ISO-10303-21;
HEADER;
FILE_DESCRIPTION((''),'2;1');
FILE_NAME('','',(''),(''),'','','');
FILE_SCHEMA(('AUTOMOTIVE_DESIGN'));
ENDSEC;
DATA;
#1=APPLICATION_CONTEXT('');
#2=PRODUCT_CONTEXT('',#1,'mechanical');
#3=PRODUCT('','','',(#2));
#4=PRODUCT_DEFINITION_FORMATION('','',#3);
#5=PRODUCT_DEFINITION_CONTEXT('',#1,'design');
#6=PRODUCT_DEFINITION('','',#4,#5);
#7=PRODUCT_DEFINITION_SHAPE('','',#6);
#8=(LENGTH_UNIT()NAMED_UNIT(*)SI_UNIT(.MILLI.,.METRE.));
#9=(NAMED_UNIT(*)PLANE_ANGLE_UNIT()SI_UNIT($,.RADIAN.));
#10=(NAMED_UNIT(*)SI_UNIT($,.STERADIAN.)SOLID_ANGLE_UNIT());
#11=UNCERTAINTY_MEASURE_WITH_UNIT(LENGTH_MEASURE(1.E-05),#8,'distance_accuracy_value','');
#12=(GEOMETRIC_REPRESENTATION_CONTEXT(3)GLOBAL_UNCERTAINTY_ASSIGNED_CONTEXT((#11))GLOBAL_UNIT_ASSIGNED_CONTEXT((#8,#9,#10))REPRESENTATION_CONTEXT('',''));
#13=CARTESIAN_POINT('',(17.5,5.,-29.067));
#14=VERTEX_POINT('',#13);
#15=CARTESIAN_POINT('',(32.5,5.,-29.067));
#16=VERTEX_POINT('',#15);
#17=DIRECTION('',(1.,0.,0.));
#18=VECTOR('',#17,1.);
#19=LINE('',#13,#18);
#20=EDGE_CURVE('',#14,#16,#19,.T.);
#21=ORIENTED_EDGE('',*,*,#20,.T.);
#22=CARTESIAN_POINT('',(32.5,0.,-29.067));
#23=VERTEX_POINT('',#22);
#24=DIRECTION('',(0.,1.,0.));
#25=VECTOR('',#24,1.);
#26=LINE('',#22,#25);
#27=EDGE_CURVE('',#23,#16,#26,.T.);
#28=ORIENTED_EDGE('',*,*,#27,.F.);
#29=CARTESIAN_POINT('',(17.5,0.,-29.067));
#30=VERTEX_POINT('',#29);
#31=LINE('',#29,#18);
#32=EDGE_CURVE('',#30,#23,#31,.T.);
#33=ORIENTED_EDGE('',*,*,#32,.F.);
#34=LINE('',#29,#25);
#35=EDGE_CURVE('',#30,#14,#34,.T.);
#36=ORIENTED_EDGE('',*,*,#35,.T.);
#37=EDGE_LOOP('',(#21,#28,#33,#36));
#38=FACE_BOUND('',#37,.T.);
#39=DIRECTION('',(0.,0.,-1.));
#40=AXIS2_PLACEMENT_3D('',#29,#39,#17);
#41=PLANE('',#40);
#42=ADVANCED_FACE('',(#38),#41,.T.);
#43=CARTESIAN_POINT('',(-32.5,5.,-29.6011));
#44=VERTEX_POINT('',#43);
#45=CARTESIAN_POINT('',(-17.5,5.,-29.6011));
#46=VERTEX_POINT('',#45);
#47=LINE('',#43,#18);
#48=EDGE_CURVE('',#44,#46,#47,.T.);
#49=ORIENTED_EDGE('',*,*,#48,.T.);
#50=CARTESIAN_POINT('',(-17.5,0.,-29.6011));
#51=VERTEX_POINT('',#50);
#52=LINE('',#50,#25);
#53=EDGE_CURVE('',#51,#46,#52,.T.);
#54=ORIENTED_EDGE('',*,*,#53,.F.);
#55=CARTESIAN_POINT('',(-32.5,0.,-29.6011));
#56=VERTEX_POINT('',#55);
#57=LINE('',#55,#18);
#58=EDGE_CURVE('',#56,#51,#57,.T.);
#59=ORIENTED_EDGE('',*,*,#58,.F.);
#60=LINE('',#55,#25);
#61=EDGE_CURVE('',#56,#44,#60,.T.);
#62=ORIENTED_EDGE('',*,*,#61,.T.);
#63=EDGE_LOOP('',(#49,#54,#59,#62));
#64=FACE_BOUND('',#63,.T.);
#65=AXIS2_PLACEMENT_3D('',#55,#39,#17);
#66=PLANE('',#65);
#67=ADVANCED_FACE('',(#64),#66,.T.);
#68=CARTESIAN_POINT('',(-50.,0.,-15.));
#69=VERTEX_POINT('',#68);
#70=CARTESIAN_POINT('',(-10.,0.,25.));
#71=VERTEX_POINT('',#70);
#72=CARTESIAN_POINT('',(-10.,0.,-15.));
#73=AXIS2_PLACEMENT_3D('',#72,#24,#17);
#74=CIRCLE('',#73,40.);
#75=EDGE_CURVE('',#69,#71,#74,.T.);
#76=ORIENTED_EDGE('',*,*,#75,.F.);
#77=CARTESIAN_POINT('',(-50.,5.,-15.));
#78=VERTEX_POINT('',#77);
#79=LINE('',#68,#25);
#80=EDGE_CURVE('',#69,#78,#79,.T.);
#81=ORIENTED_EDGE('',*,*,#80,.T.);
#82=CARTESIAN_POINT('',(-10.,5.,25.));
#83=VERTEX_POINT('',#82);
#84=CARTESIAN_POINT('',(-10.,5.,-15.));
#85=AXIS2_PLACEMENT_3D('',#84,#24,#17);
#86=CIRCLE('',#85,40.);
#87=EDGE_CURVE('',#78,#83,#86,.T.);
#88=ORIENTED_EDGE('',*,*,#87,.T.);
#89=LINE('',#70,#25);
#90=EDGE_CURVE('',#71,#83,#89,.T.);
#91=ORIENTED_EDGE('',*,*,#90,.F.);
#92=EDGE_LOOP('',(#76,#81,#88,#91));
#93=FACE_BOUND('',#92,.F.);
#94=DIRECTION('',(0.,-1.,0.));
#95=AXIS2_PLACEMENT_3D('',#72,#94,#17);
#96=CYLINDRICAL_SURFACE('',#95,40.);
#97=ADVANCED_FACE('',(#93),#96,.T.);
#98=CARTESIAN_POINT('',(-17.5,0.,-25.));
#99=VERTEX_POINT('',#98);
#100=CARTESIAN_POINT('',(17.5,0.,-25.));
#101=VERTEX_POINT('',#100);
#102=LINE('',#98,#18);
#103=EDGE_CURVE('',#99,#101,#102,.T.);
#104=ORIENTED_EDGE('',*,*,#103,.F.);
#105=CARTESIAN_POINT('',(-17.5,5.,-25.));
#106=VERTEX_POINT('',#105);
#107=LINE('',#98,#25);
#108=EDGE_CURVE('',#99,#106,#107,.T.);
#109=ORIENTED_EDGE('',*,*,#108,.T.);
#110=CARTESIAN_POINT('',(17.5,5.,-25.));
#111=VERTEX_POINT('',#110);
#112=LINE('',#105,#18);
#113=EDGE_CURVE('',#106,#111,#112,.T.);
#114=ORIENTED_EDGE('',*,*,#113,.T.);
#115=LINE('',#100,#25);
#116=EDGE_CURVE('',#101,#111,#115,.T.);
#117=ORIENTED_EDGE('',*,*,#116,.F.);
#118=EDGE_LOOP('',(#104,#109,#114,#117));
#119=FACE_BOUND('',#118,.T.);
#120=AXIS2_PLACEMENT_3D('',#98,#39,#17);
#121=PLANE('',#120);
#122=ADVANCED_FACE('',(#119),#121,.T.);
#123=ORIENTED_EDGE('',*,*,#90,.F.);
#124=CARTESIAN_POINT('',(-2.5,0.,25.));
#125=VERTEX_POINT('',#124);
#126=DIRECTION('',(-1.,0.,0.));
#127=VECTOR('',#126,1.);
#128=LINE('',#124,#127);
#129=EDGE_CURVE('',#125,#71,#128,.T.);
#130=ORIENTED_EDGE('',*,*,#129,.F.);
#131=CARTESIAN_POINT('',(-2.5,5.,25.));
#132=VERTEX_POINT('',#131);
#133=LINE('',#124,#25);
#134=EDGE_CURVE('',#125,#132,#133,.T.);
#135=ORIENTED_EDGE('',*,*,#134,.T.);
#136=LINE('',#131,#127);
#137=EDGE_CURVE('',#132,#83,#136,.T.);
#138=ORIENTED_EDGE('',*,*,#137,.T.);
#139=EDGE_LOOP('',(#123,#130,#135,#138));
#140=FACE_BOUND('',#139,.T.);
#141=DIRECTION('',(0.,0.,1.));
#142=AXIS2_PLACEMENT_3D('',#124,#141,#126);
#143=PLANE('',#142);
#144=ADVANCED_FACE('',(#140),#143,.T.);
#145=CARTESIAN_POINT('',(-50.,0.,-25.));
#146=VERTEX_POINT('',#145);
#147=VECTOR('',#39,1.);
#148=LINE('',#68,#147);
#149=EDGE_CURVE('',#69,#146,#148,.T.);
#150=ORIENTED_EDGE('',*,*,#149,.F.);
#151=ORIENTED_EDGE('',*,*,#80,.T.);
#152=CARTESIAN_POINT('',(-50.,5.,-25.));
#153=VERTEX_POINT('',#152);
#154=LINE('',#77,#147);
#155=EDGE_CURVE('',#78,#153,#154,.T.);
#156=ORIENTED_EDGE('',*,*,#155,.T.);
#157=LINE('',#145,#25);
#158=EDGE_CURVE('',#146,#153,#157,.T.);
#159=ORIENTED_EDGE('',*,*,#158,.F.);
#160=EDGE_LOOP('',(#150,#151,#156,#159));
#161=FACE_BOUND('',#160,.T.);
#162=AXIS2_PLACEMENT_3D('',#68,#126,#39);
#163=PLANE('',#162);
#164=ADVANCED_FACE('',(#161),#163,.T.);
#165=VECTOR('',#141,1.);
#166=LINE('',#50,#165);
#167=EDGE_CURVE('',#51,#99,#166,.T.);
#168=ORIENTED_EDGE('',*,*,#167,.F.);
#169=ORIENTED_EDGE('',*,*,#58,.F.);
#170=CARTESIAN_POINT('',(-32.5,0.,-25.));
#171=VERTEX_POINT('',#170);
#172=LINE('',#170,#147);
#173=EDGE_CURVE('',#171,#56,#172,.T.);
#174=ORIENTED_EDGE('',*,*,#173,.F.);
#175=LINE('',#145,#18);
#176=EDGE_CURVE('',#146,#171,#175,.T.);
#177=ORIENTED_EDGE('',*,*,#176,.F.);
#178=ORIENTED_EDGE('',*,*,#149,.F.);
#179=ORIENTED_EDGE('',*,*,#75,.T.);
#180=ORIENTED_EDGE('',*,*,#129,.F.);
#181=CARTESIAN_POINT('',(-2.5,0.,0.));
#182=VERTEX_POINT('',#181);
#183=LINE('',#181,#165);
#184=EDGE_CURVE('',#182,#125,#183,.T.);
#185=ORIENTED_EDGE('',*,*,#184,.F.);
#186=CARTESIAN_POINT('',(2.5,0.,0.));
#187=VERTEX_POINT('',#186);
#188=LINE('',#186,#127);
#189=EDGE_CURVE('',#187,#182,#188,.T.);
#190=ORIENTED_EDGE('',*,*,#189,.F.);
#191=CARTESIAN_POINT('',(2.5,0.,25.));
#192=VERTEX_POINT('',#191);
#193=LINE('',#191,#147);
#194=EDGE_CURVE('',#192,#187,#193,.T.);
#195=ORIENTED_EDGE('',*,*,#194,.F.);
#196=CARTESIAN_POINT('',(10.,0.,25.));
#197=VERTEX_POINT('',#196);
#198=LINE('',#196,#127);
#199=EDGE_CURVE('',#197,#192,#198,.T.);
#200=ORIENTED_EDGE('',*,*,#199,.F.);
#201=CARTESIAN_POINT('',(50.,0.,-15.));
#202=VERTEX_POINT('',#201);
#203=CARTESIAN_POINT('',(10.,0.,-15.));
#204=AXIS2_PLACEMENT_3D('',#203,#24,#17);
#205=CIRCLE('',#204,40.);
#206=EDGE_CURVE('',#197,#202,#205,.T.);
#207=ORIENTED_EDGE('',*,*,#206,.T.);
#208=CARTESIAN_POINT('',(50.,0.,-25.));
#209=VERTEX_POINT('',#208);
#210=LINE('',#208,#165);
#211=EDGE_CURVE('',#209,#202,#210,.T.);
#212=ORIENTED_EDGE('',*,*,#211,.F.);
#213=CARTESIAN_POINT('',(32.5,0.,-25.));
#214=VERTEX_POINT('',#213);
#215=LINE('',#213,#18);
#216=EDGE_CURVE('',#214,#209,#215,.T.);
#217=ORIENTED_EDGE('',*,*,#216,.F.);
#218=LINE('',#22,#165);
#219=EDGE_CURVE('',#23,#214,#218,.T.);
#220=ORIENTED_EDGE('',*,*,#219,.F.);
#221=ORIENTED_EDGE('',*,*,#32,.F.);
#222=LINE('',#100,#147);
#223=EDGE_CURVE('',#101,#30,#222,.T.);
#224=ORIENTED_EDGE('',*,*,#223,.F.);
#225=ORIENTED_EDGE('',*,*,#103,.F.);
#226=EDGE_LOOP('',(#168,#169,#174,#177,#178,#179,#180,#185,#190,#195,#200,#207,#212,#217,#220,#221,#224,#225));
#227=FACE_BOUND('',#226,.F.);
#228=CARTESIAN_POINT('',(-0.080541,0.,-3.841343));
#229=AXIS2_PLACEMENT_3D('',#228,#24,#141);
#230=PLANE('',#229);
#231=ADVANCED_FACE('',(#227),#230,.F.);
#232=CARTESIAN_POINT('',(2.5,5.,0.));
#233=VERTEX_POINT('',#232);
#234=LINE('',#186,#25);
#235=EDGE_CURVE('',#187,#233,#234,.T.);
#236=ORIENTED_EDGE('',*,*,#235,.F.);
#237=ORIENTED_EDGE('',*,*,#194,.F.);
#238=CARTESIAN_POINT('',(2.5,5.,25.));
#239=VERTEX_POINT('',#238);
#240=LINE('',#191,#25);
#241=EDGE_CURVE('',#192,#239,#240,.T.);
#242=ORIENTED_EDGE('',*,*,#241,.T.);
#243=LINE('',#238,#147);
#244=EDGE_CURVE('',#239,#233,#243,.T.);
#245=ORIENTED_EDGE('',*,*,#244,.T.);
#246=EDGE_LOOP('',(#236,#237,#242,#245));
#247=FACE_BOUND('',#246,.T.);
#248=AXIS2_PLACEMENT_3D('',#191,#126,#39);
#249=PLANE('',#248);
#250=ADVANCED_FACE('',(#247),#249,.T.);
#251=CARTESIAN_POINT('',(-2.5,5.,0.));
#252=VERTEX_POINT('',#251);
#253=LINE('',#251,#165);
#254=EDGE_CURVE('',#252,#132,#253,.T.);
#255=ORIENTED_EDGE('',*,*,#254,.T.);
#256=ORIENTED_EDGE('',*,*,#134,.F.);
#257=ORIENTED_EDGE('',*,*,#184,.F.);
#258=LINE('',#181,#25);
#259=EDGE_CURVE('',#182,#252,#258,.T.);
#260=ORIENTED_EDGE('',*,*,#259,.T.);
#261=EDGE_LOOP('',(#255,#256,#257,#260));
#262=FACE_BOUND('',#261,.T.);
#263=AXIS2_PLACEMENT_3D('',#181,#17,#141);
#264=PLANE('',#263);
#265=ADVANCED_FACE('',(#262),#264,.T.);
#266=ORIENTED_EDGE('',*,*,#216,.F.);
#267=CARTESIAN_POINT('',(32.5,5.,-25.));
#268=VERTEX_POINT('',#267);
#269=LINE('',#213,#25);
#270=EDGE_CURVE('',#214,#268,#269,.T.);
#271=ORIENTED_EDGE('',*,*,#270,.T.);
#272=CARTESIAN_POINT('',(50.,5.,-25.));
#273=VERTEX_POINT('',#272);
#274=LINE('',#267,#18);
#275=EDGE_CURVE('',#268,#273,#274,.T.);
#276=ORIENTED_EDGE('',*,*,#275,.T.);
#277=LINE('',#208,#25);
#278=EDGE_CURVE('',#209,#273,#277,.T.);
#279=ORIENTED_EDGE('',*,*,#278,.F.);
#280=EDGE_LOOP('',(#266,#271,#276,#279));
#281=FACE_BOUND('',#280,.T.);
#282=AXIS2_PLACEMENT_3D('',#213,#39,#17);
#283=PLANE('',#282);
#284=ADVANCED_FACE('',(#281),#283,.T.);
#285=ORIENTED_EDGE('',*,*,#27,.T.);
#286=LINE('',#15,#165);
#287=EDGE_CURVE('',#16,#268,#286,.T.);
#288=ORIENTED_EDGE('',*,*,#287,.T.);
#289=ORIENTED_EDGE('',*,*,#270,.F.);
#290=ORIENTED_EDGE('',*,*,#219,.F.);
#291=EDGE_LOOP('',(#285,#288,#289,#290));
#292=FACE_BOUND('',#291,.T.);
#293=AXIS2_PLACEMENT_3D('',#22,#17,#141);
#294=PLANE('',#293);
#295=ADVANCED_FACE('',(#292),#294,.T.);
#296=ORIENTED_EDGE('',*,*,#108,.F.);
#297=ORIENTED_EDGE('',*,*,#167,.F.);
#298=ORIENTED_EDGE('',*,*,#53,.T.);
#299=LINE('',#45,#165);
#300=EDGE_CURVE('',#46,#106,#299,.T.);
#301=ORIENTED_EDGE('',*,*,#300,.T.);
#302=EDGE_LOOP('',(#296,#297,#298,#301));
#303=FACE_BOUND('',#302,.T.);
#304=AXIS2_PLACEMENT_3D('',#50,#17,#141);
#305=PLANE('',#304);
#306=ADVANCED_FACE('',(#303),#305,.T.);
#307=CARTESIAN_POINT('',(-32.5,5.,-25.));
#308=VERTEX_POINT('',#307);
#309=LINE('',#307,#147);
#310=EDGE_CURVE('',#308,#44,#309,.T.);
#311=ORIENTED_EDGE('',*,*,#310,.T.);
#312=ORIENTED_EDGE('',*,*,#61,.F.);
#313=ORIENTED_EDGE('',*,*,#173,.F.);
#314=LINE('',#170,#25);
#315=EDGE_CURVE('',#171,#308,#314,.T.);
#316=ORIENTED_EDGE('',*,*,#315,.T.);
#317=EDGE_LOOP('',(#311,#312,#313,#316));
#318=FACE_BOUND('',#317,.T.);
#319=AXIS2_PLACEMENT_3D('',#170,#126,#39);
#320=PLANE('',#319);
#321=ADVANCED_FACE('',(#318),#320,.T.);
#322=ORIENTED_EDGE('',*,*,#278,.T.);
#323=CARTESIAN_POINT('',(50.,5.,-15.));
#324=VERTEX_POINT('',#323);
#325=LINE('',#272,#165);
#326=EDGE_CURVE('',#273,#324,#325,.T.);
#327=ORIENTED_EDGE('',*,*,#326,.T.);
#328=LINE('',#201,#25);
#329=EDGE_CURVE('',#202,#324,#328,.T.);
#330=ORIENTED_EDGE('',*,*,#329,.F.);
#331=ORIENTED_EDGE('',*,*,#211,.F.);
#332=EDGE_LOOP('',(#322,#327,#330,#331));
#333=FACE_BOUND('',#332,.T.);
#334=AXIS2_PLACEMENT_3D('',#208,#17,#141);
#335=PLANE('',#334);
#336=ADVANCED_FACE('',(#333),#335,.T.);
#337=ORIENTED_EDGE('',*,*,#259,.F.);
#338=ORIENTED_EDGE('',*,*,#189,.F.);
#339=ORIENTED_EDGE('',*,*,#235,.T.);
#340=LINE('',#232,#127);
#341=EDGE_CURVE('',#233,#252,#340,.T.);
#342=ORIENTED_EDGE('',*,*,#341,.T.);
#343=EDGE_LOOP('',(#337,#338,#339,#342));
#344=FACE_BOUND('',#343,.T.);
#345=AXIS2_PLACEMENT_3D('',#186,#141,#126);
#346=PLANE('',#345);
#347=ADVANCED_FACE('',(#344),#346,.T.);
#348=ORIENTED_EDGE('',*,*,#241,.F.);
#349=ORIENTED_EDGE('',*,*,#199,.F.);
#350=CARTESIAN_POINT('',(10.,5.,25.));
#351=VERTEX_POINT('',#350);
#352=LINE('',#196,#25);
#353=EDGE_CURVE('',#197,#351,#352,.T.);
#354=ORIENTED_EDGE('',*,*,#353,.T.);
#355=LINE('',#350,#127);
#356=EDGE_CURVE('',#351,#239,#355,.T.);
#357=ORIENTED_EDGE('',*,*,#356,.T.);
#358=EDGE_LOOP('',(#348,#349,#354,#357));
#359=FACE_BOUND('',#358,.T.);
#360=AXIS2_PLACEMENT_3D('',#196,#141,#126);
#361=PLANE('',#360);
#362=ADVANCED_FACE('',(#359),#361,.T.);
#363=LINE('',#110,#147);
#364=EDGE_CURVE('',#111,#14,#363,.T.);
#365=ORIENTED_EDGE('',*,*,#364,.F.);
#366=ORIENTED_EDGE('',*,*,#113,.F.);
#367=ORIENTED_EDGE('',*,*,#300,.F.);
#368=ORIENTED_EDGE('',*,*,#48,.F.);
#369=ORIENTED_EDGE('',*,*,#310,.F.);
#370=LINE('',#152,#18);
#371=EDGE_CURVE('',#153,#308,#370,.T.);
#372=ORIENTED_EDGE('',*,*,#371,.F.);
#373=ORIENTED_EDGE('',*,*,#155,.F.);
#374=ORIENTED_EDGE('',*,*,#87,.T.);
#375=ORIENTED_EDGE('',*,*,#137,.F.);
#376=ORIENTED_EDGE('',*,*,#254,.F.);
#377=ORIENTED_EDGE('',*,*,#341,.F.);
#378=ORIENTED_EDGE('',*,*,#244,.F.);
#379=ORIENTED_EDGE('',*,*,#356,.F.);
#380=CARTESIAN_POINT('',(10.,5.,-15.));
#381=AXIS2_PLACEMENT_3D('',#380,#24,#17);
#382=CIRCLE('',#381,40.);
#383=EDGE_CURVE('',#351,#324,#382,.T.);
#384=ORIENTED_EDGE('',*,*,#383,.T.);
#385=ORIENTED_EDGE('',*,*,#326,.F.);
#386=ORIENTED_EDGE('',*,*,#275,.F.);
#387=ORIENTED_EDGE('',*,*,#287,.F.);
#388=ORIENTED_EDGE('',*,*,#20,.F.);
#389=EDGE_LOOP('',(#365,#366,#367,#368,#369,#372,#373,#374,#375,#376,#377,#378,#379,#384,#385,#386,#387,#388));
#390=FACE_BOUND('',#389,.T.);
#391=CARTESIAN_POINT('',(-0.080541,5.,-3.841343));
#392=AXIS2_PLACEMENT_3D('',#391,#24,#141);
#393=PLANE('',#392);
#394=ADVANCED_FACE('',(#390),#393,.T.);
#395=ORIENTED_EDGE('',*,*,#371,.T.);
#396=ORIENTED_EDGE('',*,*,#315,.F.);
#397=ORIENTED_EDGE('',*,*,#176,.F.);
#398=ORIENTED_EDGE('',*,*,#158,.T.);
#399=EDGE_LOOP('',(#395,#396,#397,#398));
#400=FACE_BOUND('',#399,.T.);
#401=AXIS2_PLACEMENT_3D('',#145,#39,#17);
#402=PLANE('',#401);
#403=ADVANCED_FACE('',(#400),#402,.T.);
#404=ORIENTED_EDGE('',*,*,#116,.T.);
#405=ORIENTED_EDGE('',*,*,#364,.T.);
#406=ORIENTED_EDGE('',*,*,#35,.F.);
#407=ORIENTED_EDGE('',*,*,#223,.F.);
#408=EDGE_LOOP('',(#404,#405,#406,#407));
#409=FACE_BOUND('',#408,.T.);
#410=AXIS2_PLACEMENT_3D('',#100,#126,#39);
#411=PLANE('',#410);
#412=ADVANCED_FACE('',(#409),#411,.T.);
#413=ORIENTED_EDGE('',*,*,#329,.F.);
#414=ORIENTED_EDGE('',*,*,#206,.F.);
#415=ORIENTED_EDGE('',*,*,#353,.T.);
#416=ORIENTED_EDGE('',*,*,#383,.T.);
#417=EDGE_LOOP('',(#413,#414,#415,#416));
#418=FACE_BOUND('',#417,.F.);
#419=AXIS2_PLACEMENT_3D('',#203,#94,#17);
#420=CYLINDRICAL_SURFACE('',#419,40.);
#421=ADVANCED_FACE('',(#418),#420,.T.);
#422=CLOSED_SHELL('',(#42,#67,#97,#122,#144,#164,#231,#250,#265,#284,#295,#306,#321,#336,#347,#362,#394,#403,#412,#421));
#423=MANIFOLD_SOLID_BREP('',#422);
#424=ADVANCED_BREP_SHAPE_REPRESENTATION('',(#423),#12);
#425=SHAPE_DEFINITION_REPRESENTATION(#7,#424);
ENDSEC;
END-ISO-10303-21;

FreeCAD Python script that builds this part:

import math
import FreeCAD as App
import Part
import Sketcher

V = App.Vector
Q = App.Units.Quantity

doc = App.newDocument("Part")
body = doc.addObject("PartDesign::Body", "Body")

sketch1 = body.newObject("Sketcher::SketchObject", "Sketch")
sketch1.AttachmentSupport = (doc.getObject("XZ_Plane"), [""])
sketch1.MapMode = "FlatFace"
sketch1.addGeometry(Part.ArcOfCircle(Part.Circle(V(-10, -15, 0), V(0, 0, 1), 40), math.radians(90), math.radians(180)), False)
sketch1.addGeometry(Part.LineSegment(V(-50, -15, 0), V(-50, -25, 0)), False)
sketch1.addGeometry(Part.LineSegment(V(-50, -25, 0), V(-32.5, -25, 0)), False)
sketch1.addGeometry(Part.LineSegment(V(-32.5, -25, 0), V(-32.5, -29.6, 0)), False)
sketch1.addGeometry(Part.LineSegment(V(-32.5, -29.6, 0), V(-17.5, -29.6, 0)), False)
sketch1.addGeometry(Part.LineSegment(V(-17.5, -29.6, 0), V(-17.5, -25, 0)), False)
sketch1.addGeometry(Part.LineSegment(V(-17.5, -25, 0), V(17.5, -25, 0)), False)
sketch1.addGeometry(Part.LineSegment(V(17.5, -25, 0), V(17.5, -29.1, 0)), False)
sketch1.addGeometry(Part.LineSegment(V(17.5, -29.1, 0), V(32.5, -29.1, 0)), False)
sketch1.addGeometry(Part.LineSegment(V(32.5, -29.1, 0), V(32.5, -25, 0)), False)
sketch1.addGeometry(Part.LineSegment(V(32.5, -25, 0), V(50, -25, 0)), False)
sketch1.addGeometry(Part.LineSegment(V(50, -25, 0), V(50, -15, 0)), False)
sketch1.addGeometry(Part.ArcOfCircle(Part.Circle(V(10, -15, 0), V(0, 0, 1), 40), math.radians(0), math.radians(90)), False)
sketch1.addGeometry(Part.LineSegment(V(10, 25, 0), V(2.5, 25, 0)), False)
sketch1.addGeometry(Part.LineSegment(V(2.5, 25, 0), V(2.5, 0, 0)), False)
sketch1.addGeometry(Part.LineSegment(V(2.5, 0, 0), V(-2.5, 0, 0)), False)
sketch1.addGeometry(Part.LineSegment(V(-2.5, 0, 0), V(-2.5, 25, 0)), False)
sketch1.addGeometry(Part.LineSegment(V(-2.5, 25, 0), V(-10, 25, 0)), False)
sketch1.addConstraint(Sketcher.Constraint("Tangent", 0, 2, 1, 1))
sketch1.addConstraint(Sketcher.Constraint("Coincident", 1, 2, 2, 1))
sketch1.addConstraint(Sketcher.Constraint("Coincident", 2, 2, 3, 1))
sketch1.addConstraint(Sketcher.Constraint("Coincident", 3, 2, 4, 1))
sketch1.addConstraint(Sketcher.Constraint("Coincident", 4, 2, 5, 1))
sketch1.addConstraint(Sketcher.Constraint("Coincident", 5, 2, 6, 1))
sketch1.addConstraint(Sketcher.Constraint("Coincident", 6, 2, 7, 1))
sketch1.addConstraint(Sketcher.Constraint("Coincident", 7, 2, 8, 1))
sketch1.addConstraint(Sketcher.Constraint("Coincident", 8, 2, 9, 1))
sketch1.addConstraint(Sketcher.Constraint("Coincident", 9, 2, 10, 1))
sketch1.addConstraint(Sketcher.Constraint("Coincident", 10, 2, 11, 1))
sketch1.addConstraint(Sketcher.Constraint("Tangent", 11, 2, 12, 1))
sketch1.addConstraint(Sketcher.Constraint("Tangent", 12, 2, 13, 1))
sketch1.addConstraint(Sketcher.Constraint("Coincident", 13, 2, 14, 1))
sketch1.addConstraint(Sketcher.Constraint("Coincident", 14, 2, 15, 1))
sketch1.addConstraint(Sketcher.Constraint("Coincident", 15, 2, 16, 1))
sketch1.addConstraint(Sketcher.Constraint("Coincident", 16, 2, 17, 1))
sketch1.addConstraint(Sketcher.Constraint("Tangent", 17, 2, 0, 1))
sketch1.addConstraint(Sketcher.Constraint("Vertical", 1))
sketch1.addConstraint(Sketcher.Constraint("Horizontal", 2))
sketch1.addConstraint(Sketcher.Constraint("Vertical", 3))
sketch1.addConstraint(Sketcher.Constraint("Horizontal", 4))
sketch1.addConstraint(Sketcher.Constraint("Vertical", 5))
sketch1.addConstraint(Sketcher.Constraint("Horizontal", 6))
sketch1.addConstraint(Sketcher.Constraint("Vertical", 7))
sketch1.addConstraint(Sketcher.Constraint("Horizontal", 8))
sketch1.addConstraint(Sketcher.Constraint("Vertical", 9))
sketch1.addConstraint(Sketcher.Constraint("Horizontal", 10))
sketch1.addConstraint(Sketcher.Constraint("Vertical", 11))
sketch1.addConstraint(Sketcher.Constraint("Horizontal", 13))
sketch1.addConstraint(Sketcher.Constraint("Vertical", 14))
sketch1.addConstraint(Sketcher.Constraint("Horizontal", 15))
sketch1.addConstraint(Sketcher.Constraint("Vertical", 16))
sketch1.addConstraint(Sketcher.Constraint("Horizontal", 17))
sketch1.addConstraint(Sketcher.Constraint("Equal", 0, 12))
sketch1.addConstraint(Sketcher.Constraint("Symmetric", 14, 2, 15, 2, -1, 1))
sketch1.addConstraint(Sketcher.Constraint("Symmetric", 0, 3, 12, 3, -2))
sketch1.addConstraint(Sketcher.Constraint("Symmetric", 2, 2, 9, 2, -2))
sketch1.addConstraint(Sketcher.Constraint("Horizontal", 2, 2, 5, 2))
sketch1.addConstraint(Sketcher.Constraint("Equal", 4, 8))
sketch1.addConstraint(Sketcher.Constraint("Radius", 0, Q("40 mm")))
sketch1.addConstraint(Sketcher.Constraint("DistanceX", 4, 1, 4, 2, Q("15 mm")))
sketch1.addConstraint(Sketcher.Constraint("DistanceX", 6, 1, 6, 2, Q("35 mm")))
sketch1.addConstraint(Sketcher.Constraint("DistanceX", 15, 2, 15, 1, Q("5 mm")))
sketch1.addConstraint(Sketcher.Constraint("DistanceY", 1, 2, 1, 1, Q("10 mm")))
sketch1.addConstraint(Sketcher.Constraint("DistanceY", 14, 2, 14, 1, Q("25 mm")))
sketch1.addConstraint(Sketcher.Constraint("DistanceX", 2, 1, 2, 2, Q("17.5 mm")))
sketch1.addConstraint(Sketcher.Constraint("DistanceY", 3, 2, 3, 1, Q("4.601 mm")))
sketch1.addConstraint(Sketcher.Constraint("DistanceY", 7, 2, 7, 1, Q("4.067 mm")))
pad1 = body.newObject("PartDesign::Pad", "Pad")
pad1.Profile = sketch1
pad1.Length = 5
pad1.Reversed = True

doc.recompute()
